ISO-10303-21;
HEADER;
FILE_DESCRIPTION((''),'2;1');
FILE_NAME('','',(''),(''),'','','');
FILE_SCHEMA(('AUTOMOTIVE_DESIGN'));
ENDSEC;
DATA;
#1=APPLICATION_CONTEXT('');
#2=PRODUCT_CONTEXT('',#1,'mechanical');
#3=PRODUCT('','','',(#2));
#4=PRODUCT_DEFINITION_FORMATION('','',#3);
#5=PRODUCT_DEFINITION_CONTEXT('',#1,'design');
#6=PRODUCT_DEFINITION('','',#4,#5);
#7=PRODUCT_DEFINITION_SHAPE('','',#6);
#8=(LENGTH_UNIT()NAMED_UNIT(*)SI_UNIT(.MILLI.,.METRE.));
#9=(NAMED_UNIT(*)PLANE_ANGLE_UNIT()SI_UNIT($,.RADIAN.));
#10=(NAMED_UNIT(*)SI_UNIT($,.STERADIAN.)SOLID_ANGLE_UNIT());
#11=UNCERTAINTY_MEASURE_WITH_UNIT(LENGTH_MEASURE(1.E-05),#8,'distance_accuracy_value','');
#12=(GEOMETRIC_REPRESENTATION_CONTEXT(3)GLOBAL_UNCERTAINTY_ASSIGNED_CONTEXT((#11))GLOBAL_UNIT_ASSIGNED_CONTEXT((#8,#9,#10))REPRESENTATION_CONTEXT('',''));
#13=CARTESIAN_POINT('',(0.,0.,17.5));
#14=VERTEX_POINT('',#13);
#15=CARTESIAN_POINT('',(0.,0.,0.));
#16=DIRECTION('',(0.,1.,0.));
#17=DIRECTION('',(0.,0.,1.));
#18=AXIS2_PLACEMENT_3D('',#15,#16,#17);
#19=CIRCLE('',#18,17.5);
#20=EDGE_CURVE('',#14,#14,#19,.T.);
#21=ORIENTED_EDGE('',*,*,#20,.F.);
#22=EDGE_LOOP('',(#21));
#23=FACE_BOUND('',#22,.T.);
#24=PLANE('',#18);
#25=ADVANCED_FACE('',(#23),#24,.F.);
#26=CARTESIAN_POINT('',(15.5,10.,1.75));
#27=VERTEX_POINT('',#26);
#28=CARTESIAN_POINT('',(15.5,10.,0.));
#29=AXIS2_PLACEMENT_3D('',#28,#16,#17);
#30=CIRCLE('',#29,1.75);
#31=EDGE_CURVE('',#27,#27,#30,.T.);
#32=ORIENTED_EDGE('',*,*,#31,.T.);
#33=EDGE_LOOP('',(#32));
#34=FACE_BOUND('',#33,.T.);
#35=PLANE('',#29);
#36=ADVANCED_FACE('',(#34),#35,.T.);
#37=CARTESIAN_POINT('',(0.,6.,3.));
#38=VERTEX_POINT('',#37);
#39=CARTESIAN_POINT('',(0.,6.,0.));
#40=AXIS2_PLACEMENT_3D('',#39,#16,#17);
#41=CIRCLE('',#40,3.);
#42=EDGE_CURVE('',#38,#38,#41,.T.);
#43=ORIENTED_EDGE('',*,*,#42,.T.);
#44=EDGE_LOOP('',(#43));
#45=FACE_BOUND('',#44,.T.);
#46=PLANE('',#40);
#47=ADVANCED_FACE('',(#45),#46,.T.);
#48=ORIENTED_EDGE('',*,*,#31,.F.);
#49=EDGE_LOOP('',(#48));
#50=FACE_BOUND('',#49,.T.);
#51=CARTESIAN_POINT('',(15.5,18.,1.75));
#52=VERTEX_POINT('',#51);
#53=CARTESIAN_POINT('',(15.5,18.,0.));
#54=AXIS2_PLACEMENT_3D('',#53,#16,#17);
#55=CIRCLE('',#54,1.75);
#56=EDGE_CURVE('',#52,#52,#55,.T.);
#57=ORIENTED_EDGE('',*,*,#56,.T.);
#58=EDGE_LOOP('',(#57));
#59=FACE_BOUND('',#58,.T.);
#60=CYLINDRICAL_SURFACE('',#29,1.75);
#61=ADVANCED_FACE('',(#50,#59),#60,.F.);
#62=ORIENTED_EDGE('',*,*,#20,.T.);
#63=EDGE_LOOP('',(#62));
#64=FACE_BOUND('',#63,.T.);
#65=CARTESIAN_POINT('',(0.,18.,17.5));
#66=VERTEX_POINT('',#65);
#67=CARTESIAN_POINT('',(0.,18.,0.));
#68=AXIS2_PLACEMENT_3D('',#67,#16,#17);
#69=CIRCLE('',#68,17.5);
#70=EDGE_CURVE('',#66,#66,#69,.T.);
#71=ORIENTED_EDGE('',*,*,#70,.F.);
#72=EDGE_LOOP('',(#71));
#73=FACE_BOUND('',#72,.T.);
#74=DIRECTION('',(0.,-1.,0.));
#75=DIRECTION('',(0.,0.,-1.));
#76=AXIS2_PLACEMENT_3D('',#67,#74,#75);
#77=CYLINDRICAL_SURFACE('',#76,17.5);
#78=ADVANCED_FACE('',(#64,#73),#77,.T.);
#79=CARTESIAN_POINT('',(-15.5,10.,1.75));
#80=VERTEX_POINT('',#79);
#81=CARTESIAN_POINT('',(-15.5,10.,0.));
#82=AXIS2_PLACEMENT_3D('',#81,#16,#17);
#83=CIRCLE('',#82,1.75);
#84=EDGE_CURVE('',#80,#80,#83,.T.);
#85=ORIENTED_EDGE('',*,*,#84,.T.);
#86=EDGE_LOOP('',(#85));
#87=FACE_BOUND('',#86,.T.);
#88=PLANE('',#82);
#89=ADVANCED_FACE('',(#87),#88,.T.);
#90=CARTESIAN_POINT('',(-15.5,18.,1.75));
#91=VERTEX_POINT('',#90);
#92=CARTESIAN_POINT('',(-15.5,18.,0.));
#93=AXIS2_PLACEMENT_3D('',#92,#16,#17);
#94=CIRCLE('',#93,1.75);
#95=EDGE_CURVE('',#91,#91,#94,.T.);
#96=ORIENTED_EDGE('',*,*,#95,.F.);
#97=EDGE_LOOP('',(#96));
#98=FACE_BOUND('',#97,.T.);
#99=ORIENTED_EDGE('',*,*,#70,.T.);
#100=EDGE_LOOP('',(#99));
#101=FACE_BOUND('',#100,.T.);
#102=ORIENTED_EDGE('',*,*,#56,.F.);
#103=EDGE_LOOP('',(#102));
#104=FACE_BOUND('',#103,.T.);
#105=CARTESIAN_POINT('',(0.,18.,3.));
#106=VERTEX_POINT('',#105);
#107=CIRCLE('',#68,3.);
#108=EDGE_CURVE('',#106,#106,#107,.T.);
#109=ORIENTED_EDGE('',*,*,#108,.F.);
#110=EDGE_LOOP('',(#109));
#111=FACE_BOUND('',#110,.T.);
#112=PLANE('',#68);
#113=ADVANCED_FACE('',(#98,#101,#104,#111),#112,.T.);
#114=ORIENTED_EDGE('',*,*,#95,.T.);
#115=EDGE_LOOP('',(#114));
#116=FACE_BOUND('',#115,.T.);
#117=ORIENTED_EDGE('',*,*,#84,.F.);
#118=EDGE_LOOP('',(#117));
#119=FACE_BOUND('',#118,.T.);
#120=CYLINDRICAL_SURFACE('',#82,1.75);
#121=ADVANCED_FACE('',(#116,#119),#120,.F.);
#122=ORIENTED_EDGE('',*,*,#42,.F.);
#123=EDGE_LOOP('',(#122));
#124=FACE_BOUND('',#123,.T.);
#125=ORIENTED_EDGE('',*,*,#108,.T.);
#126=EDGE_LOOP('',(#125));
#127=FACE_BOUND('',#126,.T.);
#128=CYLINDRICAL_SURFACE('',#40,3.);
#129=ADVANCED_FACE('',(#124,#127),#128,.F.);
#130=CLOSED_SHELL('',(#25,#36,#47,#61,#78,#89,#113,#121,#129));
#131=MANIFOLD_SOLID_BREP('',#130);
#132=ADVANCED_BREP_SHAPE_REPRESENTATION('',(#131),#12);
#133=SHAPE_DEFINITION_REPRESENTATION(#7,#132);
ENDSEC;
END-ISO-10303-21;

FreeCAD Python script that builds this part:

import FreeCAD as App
import Part
import Sketcher

V = App.Vector
Q = App.Units.Quantity

doc = App.newDocument("Part")
body = doc.addObject("PartDesign::Body", "Body")

sketch1 = body.newObject("Sketcher::SketchObject", "Sketch")
sketch1.AttachmentSupport = (doc.getObject("XZ_Plane"), [""])
sketch1.MapMode = "FlatFace"
sketch1.addGeometry(Part.Circle(V(0, 0, 0), V(0, 0, 1), 18), False)
sketch1.addConstraint([
    Sketcher.Constraint("Coincident", 0, 3, -1, 1),
    Sketcher.Constraint("Diameter", 0, Q("35 mm")),
])
pad1 = body.newObject("PartDesign::Pad", "Pad")
pad1.Profile = sketch1
pad1.Length = 18
pad1.Reversed = True

sketch2 = body.newObject("Sketcher::SketchObject", "Sketch001")
sketch2.AttachmentSupport = (doc.getObject("XZ_Plane"), [""])
sketch2.MapMode = "FlatFace"
sketch2.AttachmentOffset = App.Placement(V(0, 0, -18), App.Rotation())
sketch2.addGeometry(Part.Circle(V(0, 0, 0), V(0, 0, 1), 3), False)
sketch2.addConstraint([
    Sketcher.Constraint("Coincident", 0, 3, -1, 1),
    Sketcher.Constraint("Diameter", 0, Q("6 mm")),
])
pocket1 = body.newObject("PartDesign::Pocket", "Pocket")
pocket1.Profile = sketch2
pocket1.Length = 12
pocket1.Reversed = True

sketch3 = body.newObject("Sketcher::SketchObject", "Sketch002")
sketch3.AttachmentSupport = (doc.getObject("XZ_Plane"), [""])
sketch3.MapMode = "FlatFace"
sketch3.AttachmentOffset = App.Placement(V(0, 0, -18), App.Rotation())
sketch3.addGeometry([
    Part.Circle(V(15.5, 0, 0), V(0, 0, 1), 1.8),
    Part.Circle(V(-15.5, 0, 0), V(0, 0, 1), 1.8),
], False)
sketch3.addConstraint([
    Sketcher.Constraint("Equal", 0, 1),
    Sketcher.Constraint("Symmetric", 0, 3, 1, 3, -1, 1),
    Sketcher.Constraint("PointOnObject", 0, 3, -1),
    Sketcher.Constraint("Diameter", 0, Q("3.5 mm")),
    Sketcher.Constraint("DistanceX", 1, 3, 0, 3, Q("31 mm")),
])
pocket2 = body.newObject("PartDesign::Pocket", "Pocket001")
pocket2.Profile = sketch3
pocket2.Length = 8
pocket2.Reversed = True

doc.recompute()
